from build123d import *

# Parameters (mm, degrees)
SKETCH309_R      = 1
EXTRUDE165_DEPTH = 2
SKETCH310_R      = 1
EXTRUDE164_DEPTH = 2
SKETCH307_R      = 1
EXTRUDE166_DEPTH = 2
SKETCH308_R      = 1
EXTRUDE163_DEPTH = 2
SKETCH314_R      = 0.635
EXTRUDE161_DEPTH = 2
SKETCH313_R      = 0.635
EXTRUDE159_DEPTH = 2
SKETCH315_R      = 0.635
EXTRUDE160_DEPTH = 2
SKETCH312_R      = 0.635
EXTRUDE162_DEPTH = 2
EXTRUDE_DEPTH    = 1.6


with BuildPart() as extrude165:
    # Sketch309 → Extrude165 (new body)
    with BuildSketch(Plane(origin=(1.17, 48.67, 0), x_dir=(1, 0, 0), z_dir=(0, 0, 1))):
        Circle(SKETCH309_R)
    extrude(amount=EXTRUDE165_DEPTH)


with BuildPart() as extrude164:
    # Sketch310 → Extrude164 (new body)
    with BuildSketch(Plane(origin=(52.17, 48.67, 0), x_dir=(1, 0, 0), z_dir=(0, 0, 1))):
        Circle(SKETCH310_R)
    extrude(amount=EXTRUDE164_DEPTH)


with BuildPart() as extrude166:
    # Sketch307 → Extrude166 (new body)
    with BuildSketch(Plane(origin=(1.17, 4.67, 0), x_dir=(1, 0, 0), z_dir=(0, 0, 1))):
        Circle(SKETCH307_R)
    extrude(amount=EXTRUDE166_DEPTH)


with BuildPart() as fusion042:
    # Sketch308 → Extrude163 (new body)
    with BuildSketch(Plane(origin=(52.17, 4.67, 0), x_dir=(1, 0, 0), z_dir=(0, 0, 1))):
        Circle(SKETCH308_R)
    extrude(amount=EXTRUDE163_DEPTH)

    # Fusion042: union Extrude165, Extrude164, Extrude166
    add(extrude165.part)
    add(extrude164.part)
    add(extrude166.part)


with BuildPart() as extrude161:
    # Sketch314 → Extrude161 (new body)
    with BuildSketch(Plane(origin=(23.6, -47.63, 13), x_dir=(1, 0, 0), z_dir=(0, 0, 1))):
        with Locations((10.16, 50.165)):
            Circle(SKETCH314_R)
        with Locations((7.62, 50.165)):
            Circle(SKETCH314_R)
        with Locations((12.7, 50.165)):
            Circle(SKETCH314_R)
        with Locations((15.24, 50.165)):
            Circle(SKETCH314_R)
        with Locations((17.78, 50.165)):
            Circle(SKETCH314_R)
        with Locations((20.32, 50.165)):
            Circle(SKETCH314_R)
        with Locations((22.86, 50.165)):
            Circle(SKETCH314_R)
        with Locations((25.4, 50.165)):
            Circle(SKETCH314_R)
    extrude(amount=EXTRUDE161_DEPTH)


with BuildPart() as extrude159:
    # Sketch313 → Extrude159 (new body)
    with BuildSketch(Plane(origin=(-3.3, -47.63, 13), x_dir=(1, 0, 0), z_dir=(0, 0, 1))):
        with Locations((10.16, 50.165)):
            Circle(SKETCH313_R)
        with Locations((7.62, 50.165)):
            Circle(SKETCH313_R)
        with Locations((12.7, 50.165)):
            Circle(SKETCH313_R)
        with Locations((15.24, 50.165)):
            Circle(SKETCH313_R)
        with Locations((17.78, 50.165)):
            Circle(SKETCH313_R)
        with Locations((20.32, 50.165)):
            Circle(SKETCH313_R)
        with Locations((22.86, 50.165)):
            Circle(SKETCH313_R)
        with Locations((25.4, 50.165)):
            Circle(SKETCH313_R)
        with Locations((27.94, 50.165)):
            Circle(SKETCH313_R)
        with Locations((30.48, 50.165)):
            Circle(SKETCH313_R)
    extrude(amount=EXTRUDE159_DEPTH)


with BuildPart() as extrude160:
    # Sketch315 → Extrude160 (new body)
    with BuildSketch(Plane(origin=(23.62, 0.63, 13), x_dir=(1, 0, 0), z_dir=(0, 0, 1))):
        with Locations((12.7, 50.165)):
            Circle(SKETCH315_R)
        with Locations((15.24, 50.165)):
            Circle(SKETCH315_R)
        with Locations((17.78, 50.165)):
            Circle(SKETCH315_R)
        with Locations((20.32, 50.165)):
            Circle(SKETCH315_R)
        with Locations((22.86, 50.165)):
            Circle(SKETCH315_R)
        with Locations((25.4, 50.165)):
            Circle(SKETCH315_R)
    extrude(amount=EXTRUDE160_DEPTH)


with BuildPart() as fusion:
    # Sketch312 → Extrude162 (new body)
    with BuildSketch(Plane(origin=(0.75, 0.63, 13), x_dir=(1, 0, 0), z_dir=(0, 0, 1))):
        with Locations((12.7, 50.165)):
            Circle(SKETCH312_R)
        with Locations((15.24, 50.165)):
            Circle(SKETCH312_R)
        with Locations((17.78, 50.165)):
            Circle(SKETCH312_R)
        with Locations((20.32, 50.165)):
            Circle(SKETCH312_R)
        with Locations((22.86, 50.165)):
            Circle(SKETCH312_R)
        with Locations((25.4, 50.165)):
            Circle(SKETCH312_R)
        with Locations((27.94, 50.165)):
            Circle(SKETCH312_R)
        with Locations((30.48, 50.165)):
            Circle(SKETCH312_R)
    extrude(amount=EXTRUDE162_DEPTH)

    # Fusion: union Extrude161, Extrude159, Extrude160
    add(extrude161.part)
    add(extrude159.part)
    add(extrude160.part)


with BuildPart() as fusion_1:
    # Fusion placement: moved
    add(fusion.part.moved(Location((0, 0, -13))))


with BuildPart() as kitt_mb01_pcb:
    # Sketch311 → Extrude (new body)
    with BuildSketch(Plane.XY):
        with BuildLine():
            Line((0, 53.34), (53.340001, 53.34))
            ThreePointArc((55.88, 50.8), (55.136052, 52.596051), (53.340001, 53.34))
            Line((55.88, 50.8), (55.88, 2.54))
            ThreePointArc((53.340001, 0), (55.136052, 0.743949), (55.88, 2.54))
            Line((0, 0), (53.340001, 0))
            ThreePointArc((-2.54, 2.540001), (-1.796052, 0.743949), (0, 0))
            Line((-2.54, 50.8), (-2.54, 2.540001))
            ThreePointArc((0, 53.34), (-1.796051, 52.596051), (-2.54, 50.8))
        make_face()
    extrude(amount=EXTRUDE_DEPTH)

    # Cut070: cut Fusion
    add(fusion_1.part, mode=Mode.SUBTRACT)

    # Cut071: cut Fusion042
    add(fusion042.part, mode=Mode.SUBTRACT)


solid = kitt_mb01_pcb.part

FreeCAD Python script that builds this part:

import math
import FreeCAD as App
import Part
import Sketcher
Q = App.Units.Quantity

doc = App.newDocument("Part")
body = doc.addObject("PartDesign::Body", "Body")

# Sketch on XY plane
sketch1 = body.newObject("Sketcher::SketchObject", "Sketch")
sketch1.AttachmentSupport = (doc.getObject("XY_Plane"), [""])
sketch1.MapMode = "FlatFace"
sketch1.addGeometry(Part.Circle(App.Vector(1.2, 48.7, 0), App.Vector(0, 0, 1), 1), False)
sketch1.addConstraint(Sketcher.Constraint("Diameter", 0, 2.0))
sketch1.addConstraint(Sketcher.Constraint("DistanceX", -1, 1, 0, 3, 1.17))
sketch1.addConstraint(Sketcher.Constraint("DistanceY", -1, 1, 0, 3, 48.67))
pad1 = body.newObject("PartDesign::Pad", "Pad")
pad1.Profile = sketch1
pad1.Length = 2
body2 = doc.addObject("PartDesign::Body", "Body001")

# Sketch on XY plane
sketch2 = body2.newObject("Sketcher::SketchObject", "Sketch001")
sketch2.AttachmentSupport = (doc.getObject("XY_Plane001"), [""])
sketch2.MapMode = "FlatFace"
sketch2.addGeometry(Part.Circle(App.Vector(52.2, 48.7, 0), App.Vector(0, 0, 1), 1), False)
sketch2.addConstraint(Sketcher.Constraint("Diameter", 0, 2.0))
sketch2.addConstraint(Sketcher.Constraint("DistanceX", -1, 1, 0, 3, 52.17))
sketch2.addConstraint(Sketcher.Constraint("DistanceY", -1, 1, 0, 3, 48.67))
pad2 = body2.newObject("PartDesign::Pad", "Pad001")
pad2.Profile = sketch2
pad2.Length = 2
body3 = doc.addObject("PartDesign::Body", "Body002")

# Sketch on XY plane
sketch3 = body3.newObject("Sketcher::SketchObject", "Sketch002")
sketch3.AttachmentSupport = (doc.getObject("XY_Plane002"), [""])
sketch3.MapMode = "FlatFace"
sketch3.addGeometry(Part.Circle(App.Vector(1.2, 4.7, 0), App.Vector(0, 0, 1), 1), False)
sketch3.addConstraint(Sketcher.Constraint("Diameter", 0, 2.0))
sketch3.addConstraint(Sketcher.Constraint("DistanceX", -1, 1, 0, 3, 1.17))
sketch3.addConstraint(Sketcher.Constraint("DistanceY", -1, 1, 0, 3, 4.67))
pad3 = body3.newObject("PartDesign::Pad", "Pad002")
pad3.Profile = sketch3
pad3.Length = 2
body4 = doc.addObject("PartDesign::Body", "Body003")
body4.AllowCompound = True

# Sketch on XY plane
sketch4 = body4.newObject("Sketcher::SketchObject", "Sketch003")
sketch4.AttachmentSupport = (doc.getObject("XY_Plane003"), [""])
sketch4.MapMode = "FlatFace"
sketch4.addGeometry(Part.Circle(App.Vector(52.2, 4.7, 0), App.Vector(0, 0, 1), 1), False)
sketch4.addConstraint(Sketcher.Constraint("Diameter", 0, 2.0))
sketch4.addConstraint(Sketcher.Constraint("DistanceX", -1, 1, 0, 3, 52.17))
sketch4.addConstraint(Sketcher.Constraint("DistanceY", -1, 1, 0, 3, 4.67))
pad4 = body4.newObject("PartDesign::Pad", "Pad003")
pad4.Profile = sketch4
pad4.Length = 2
doc.recompute()

boolean = body4.newObject("PartDesign::Boolean", "Boolean")
boolean.Type = "Fuse"
boolean.addObjects([body])
doc.recompute()

boolean2 = body4.newObject("PartDesign::Boolean", "Boolean001")
boolean2.Type = "Fuse"
boolean2.addObjects([body2])
doc.recompute()

boolean3 = body4.newObject("PartDesign::Boolean", "Boolean002")
boolean3.Type = "Fuse"
boolean3.addObjects([body3])
body5 = doc.addObject("PartDesign::Body", "Body004")
body5.AllowCompound = True

# Sketch on XY plane
sketch5 = body5.newObject("Sketcher::SketchObject", "Sketch004")
sketch5.AttachmentSupport = (doc.getObject("XY_Plane004"), [""])
sketch5.MapMode = "FlatFace"
sketch5.AttachmentOffset = App.Placement(App.Vector(0, 0, 13), App.Rotation())
sketch5.addGeometry(Part.Circle(App.Vector(33.8, 2.5, 0), App.Vector(0, 0, 1), 0.6), False)
sketch5.addGeometry(Part.Circle(App.Vector(31.2, 2.5, 0), App.Vector(0, 0, 1), 0.6), False)
sketch5.addGeometry(Part.Circle(App.Vector(36.3, 2.5, 0), App.Vector(0, 0, 1), 0.6), False)
sketch5.addGeometry(Part.Circle(App.Vector(38.8, 2.5, 0), App.Vector(0, 0, 1), 0.6), False)
sketch5.addGeometry(Part.Circle(App.Vector(41.4, 2.5, 0), App.Vector(0, 0, 1), 0.6), False)
sketch5.addGeometry(Part.Circle(App.Vector(43.9, 2.5, 0), App.Vector(0, 0, 1), 0.6), False)
sketch5.addGeometry(Part.Circle(App.Vector(46.5, 2.5, 0), App.Vector(0, 0, 1), 0.6), False)
sketch5.addGeometry(Part.Circle(App.Vector(49, 2.5, 0), App.Vector(0, 0, 1), 0.6), False)
sketch5.addConstraint(Sketcher.Constraint("Equal", 0, 1))
sketch5.addConstraint(Sketcher.Constraint("Equal", 1, 2))
sketch5.addConstraint(Sketcher.Constraint("Equal", 2, 3))
sketch5.addConstraint(Sketcher.Constraint("Equal", 3, 4))
sketch5.addConstraint(Sketcher.Constraint("Equal", 4, 5))
sketch5.addConstraint(Sketcher.Constraint("Equal", 5, 6))
sketch5.addConstraint(Sketcher.Constraint("Equal", 6, 7))
sketch5.addConstraint(Sketcher.Constraint("Horizontal", 0, 3, 1, 3))
sketch5.addConstraint(Sketcher.Constraint("Horizontal", 1, 3, 2, 3))
sketch5.addConstraint(Sketcher.Constraint("Horizontal", 2, 3, 3, 3))
sketch5.addConstraint(Sketcher.Constraint("Horizontal", 3, 3, 4, 3))
sketch5.addConstraint(Sketcher.Constraint("Horizontal", 4, 3, 5, 3))
sketch5.addConstraint(Sketcher.Constraint("Horizontal", 5, 3, 6, 3))
sketch5.addConstraint(Sketcher.Constraint("Horizontal", 6, 3, 7, 3))
sketch5.addConstraint(Sketcher.Constraint("Diameter", 0, Q("0.05 in")))
sketch5.addConstraint(Sketcher.Constraint("DistanceX", 1, 3, 0, 3, Q("0.1 in")))
sketch5.addConstraint(Sketcher.Constraint("DistanceX", 0, 3, 2, 3, Q("0.1 in")))
sketch5.addConstraint(Sketcher.Constraint("DistanceX", 2, 3, 3, 3, Q("0.1 in")))
sketch5.addConstraint(Sketcher.Constraint("DistanceX", 3, 3, 4, 3, Q("0.1 in")))
sketch5.addConstraint(Sketcher.Constraint("DistanceX", 4, 3, 5, 3, Q("0.1 in")))
sketch5.addConstraint(Sketcher.Constraint("DistanceX", 5, 3, 6, 3, Q("0.1 in")))
sketch5.addConstraint(Sketcher.Constraint("DistanceX", 6, 3, 7, 3, Q("0.1 in")))
sketch5.addConstraint(Sketcher.Constraint("DistanceX", -1, 1, 0, 3, 33.76))
sketch5.addConstraint(Sketcher.Constraint("DistanceY", -1, 1, 0, 3, 2.535))
pad5 = body5.newObject("PartDesign::Pad", "Pad004")
pad5.Profile = sketch5
pad5.Length = 2
body6 = doc.addObject("PartDesign::Body", "Body005")
body6.AllowCompound = True

# Sketch on XY plane
sketch6 = body6.newObject("Sketcher::SketchObject", "Sketch005")
sketch6.AttachmentSupport = (doc.getObject("XY_Plane005"), [""])
sketch6.MapMode = "FlatFace"
sketch6.AttachmentOffset = App.Placement(App.Vector(0, 0, 13), App.Rotation())
sketch6.addGeometry(Part.Circle(App.Vector(6.9, 2.5, 0), App.Vector(0, 0, 1), 0.6), False)
sketch6.addGeometry(Part.Circle(App.Vector(4.3, 2.5, 0), App.Vector(0, 0, 1), 0.6), False)
sketch6.addGeometry(Part.Circle(App.Vector(9.4, 2.5, 0), App.Vector(0, 0, 1), 0.6), False)
sketch6.addGeometry(Part.Circle(App.Vector(11.9, 2.5, 0), App.Vector(0, 0, 1), 0.6), False)
sketch6.addGeometry(Part.Circle(App.Vector(14.5, 2.5, 0), App.Vector(0, 0, 1), 0.6), False)
sketch6.addGeometry(Part.Circle(App.Vector(17, 2.5, 0), App.Vector(0, 0, 1), 0.6), False)
sketch6.addGeometry(Part.Circle(App.Vector(19.6, 2.5, 0), App.Vector(0, 0, 1), 0.6), False)
sketch6.addGeometry(Part.Circle(App.Vector(22.1, 2.5, 0), App.Vector(0, 0, 1), 0.6), False)
sketch6.addGeometry(Part.Circle(App.Vector(24.6, 2.5, 0), App.Vector(0, 0, 1), 0.6), False)
sketch6.addGeometry(Part.Circle(App.Vector(27.2, 2.5, 0), App.Vector(0, 0, 1), 0.6), False)
sketch6.addConstraint(Sketcher.Constraint("Equal", 0, 1))
sketch6.addConstraint(Sketcher.Constraint("Equal", 1, 2))
sketch6.addConstraint(Sketcher.Constraint("Equal", 2, 3))
sketch6.addConstraint(Sketcher.Constraint("Equal", 3, 4))
sketch6.addConstraint(Sketcher.Constraint("Equal", 4, 5))
sketch6.addConstraint(Sketcher.Constraint("Equal", 5, 6))
sketch6.addConstraint(Sketcher.Constraint("Equal", 6, 7))
sketch6.addConstraint(Sketcher.Constraint("Equal", 7, 8))
sketch6.addConstraint(Sketcher.Constraint("Equal", 8, 9))
sketch6.addConstraint(Sketcher.Constraint("Horizontal", 0, 3, 1, 3))
sketch6.addConstraint(Sketcher.Constraint("Horizontal", 1, 3, 2, 3))
sketch6.addConstraint(Sketcher.Constraint("Horizontal", 2, 3, 3, 3))
sketch6.addConstraint(Sketcher.Constraint("Horizontal", 3, 3, 4, 3))
sketch6.addConstraint(Sketcher.Constraint("Horizontal", 4, 3, 5, 3))
sketch6.addConstraint(Sketcher.Constraint("Horizontal", 5, 3, 6, 3))
sketch6.addConstraint(Sketcher.Constraint("Horizontal", 6, 3, 7, 3))
sketch6.addConstraint(Sketcher.Constraint("Horizontal", 7, 3, 8, 3))
sketch6.addConstraint(Sketcher.Constraint("Horizontal", 8, 3, 9, 3))
sketch6.addConstraint(Sketcher.Constraint("Diameter", 0, Q("0.05 in")))
sketch6.addConstraint(Sketcher.Constraint("DistanceX", 1, 3, 0, 3, Q("0.1 in")))
sketch6.addConstraint(Sketcher.Constraint("DistanceX", 0, 3, 2, 3, Q("0.1 in")))
sketch6.addConstraint(Sketcher.Constraint("DistanceX", 2, 3, 3, 3, Q("0.1 in")))
sketch6.addConstraint(Sketcher.Constraint("DistanceX", 3, 3, 4, 3, Q("0.1 in")))
sketch6.addConstraint(Sketcher.Constraint("DistanceX", 4, 3, 5, 3, Q("0.1 in")))
sketch6.addConstraint(Sketcher.Constraint("DistanceX", 5, 3, 6, 3, Q("0.1 in")))
sketch6.addConstraint(Sketcher.Constraint("DistanceX", 6, 3, 7, 3, Q("0.1 in")))
sketch6.addConstraint(Sketcher.Constraint("DistanceX", 7, 3, 8, 3, Q("0.1 in")))
sketch6.addConstraint(Sketcher.Constraint("DistanceX", 8, 3, 9, 3, Q("0.1 in")))
sketch6.addConstraint(Sketcher.Constraint("DistanceX", -1, 1, 0, 3, 6.86))
sketch6.addConstraint(Sketcher.Constraint("DistanceY", -1, 1, 0, 3, 2.535))
pad6 = body6.newObject("PartDesign::Pad", "Pad005")
pad6.Profile = sketch6
pad6.Length = 2
body7 = doc.addObject("PartDesign::Body", "Body006")
body7.AllowCompound = True

# Sketch on XY plane
sketch7 = body7.newObject("Sketcher::SketchObject", "Sketch006")
sketch7.AttachmentSupport = (doc.getObject("XY_Plane006"), [""])
sketch7.MapMode = "FlatFace"
sketch7.AttachmentOffset = App.Placement(App.Vector(0, 0, 13), App.Rotation())
sketch7.addGeometry(Part.Circle(App.Vector(36.3, 50.8, 0), App.Vector(0, 0, 1), 0.6), False)
sketch7.addGeometry(Part.Circle(App.Vector(38.9, 50.8, 0), App.Vector(0, 0, 1), 0.6), False)
sketch7.addGeometry(Part.Circle(App.Vector(41.4, 50.8, 0), App.Vector(0, 0, 1), 0.6), False)
sketch7.addGeometry(Part.Circle(App.Vector(43.9, 50.8, 0), App.Vector(0, 0, 1), 0.6), False)
sketch7.addGeometry(Part.Circle(App.Vector(46.5, 50.8, 0), App.Vector(0, 0, 1), 0.6), False)
sketch7.addGeometry(Part.Circle(App.Vector(49, 50.8, 0), App.Vector(0, 0, 1), 0.6), False)
sketch7.addConstraint(Sketcher.Constraint("Equal", 0, 1))
sketch7.addConstraint(Sketcher.Constraint("Equal", 1, 2))
sketch7.addConstraint(Sketcher.Constraint("Equal", 2, 3))
sketch7.addConstraint(Sketcher.Constraint("Equal", 3, 4))
sketch7.addConstraint(Sketcher.Constraint("Equal", 4, 5))
sketch7.addConstraint(Sketcher.Constraint("Horizontal", 0, 3, 1, 3))
sketch7.addConstraint(Sketcher.Constraint("Horizontal", 1, 3, 2, 3))
sketch7.addConstraint(Sketcher.Constraint("Horizontal", 2, 3, 3, 3))
sketch7.addConstraint(Sketcher.Constraint("Horizontal", 3, 3, 4, 3))
sketch7.addConstraint(Sketcher.Constraint("Horizontal", 4, 3, 5, 3))
sketch7.addConstraint(Sketcher.Constraint("Diameter", 0, Q("0.05 in")))
sketch7.addConstraint(Sketcher.Constraint("DistanceX", 0, 3, 1, 3, Q("0.1 in")))
sketch7.addConstraint(Sketcher.Constraint("DistanceX", 1, 3, 2, 3, Q("0.1 in")))
sketch7.addConstraint(Sketcher.Constraint("DistanceX", 2, 3, 3, 3, Q("0.1 in")))
sketch7.addConstraint(Sketcher.Constraint("DistanceX", 3, 3, 4, 3, Q("0.1 in")))
sketch7.addConstraint(Sketcher.Constraint("DistanceX", 4, 3, 5, 3, Q("0.1 in")))
sketch7.addConstraint(Sketcher.Constraint("DistanceX", -1, 1, 0, 3, 36.32))
sketch7.addConstraint(Sketcher.Constraint("DistanceY", -1, 1, 0, 3, 50.795))
pad7 = body7.newObject("PartDesign::Pad", "Pad006")
pad7.Profile = sketch7
pad7.Length = 2
body8 = doc.addObject("PartDesign::Body", "Body007")
body8.AllowCompound = True

# Sketch on XY plane
sketch8 = body8.newObject("Sketcher::SketchObject", "Sketch007")
sketch8.AttachmentSupport = (doc.getObject("XY_Plane007"), [""])
sketch8.MapMode = "FlatFace"
sketch8.AttachmentOffset = App.Placement(App.Vector(0, 0, 13), App.Rotation())
sketch8.addGeometry(Part.Circle(App.Vector(13.4, 50.8, 0), App.Vector(0, 0, 1), 0.6), False)
sketch8.addGeometry(Part.Circle(App.Vector(16, 50.8, 0), App.Vector(0, 0, 1), 0.6), False)
sketch8.addGeometry(Part.Circle(App.Vector(18.5, 50.8, 0), App.Vector(0, 0, 1), 0.6), False)
sketch8.addGeometry(Part.Circle(App.Vector(21.1, 50.8, 0), App.Vector(0, 0, 1), 0.6), False)
sketch8.addGeometry(Part.Circle(App.Vector(23.6, 50.8, 0), App.Vector(0, 0, 1), 0.6), False)
sketch8.addGeometry(Part.Circle(App.Vector(26.1, 50.8, 0), App.Vector(0, 0, 1), 0.6), False)
sketch8.addGeometry(Part.Circle(App.Vector(28.7, 50.8, 0), App.Vector(0, 0, 1), 0.6), False)
sketch8.addGeometry(Part.Circle(App.Vector(31.2, 50.8, 0), App.Vector(0, 0, 1), 0.6), False)
sketch8.addConstraint(Sketcher.Constraint("Equal", 0, 1))
sketch8.addConstraint(Sketcher.Constraint("Equal", 1, 2))
sketch8.addConstraint(Sketcher.Constraint("Equal", 2, 3))
sketch8.addConstraint(Sketcher.Constraint("Equal", 3, 4))
sketch8.addConstraint(Sketcher.Constraint("Equal", 4, 5))
sketch8.addConstraint(Sketcher.Constraint("Equal", 5, 6))
sketch8.addConstraint(Sketcher.Constraint("Equal", 6, 7))
sketch8.addConstraint(Sketcher.Constraint("Horizontal", 0, 3, 1, 3))
sketch8.addConstraint(Sketcher.Constraint("Horizontal", 1, 3, 2, 3))
sketch8.addConstraint(Sketcher.Constraint("Horizontal", 2, 3, 3, 3))
sketch8.addConstraint(Sketcher.Constraint("Horizontal", 3, 3, 4, 3))
sketch8.addConstraint(Sketcher.Constraint("Horizontal", 4, 3, 5, 3))
sketch8.addConstraint(Sketcher.Constraint("Horizontal", 5, 3, 6, 3))
sketch8.addConstraint(Sketcher.Constraint("Horizontal", 6, 3, 7, 3))
sketch8.addConstraint(Sketcher.Constraint("Diameter", 0, Q("0.05 in")))
sketch8.addConstraint(Sketcher.Constraint("DistanceX", 0, 3, 1, 3, Q("0.1 in")))
sketch8.addConstraint(Sketcher.Constraint("DistanceX", 1, 3, 2, 3, Q("0.1 in")))
sketch8.addConstraint(Sketcher.Constraint("DistanceX", 2, 3, 3, 3, Q("0.1 in")))
sketch8.addConstraint(Sketcher.Constraint("DistanceX", 3, 3, 4, 3, Q("0.1 in")))
sketch8.addConstraint(Sketcher.Constraint("DistanceX", 4, 3, 5, 3, Q("0.1 in")))
sketch8.addConstraint(Sketcher.Constraint("DistanceX", 5, 3, 6, 3, Q("0.1 in")))
sketch8.addConstraint(Sketcher.Constraint("DistanceX", 6, 3, 7, 3, Q("0.1 in")))
sketch8.addConstraint(Sketcher.Constraint("DistanceX", -1, 1, 0, 3, 13.45))
sketch8.addConstraint(Sketcher.Constraint("DistanceY", -1, 1, 0, 3, 50.795))
pad8 = body8.newObject("PartDesign::Pad", "Pad007")
pad8.Profile = sketch8
pad8.Length = 2
doc.recompute()

boolean4 = body8.newObject("PartDesign::Boolean", "Boolean003")
boolean4.Type = "Fuse"
boolean4.addObjects([body5])
doc.recompute()

boolean5 = body8.newObject("PartDesign::Boolean", "Boolean004")
boolean5.Type = "Fuse"
boolean5.addObjects([body6])
doc.recompute()

boolean6 = body8.newObject("PartDesign::Boolean", "Boolean005")
boolean6.Type = "Fuse"
boolean6.addObjects([body7])
body9 = doc.addObject("PartDesign::Body", "Body008")
body9.AllowCompound = True
doc.recompute()

body8.Placement = App.Placement(App.Vector(0, 0, -13), App.Rotation(App.Vector(0, 0, 1), 0))
boolean7 = body9.newObject("PartDesign::Boolean", "Boolean006")
boolean7.Type = "Fuse"
boolean7.addObjects([body8])
body10 = doc.addObject("PartDesign::Body", "Body009")

# Sketch on XY plane
sketch9 = body10.newObject("Sketcher::SketchObject", "Sketch008")
sketch9.AttachmentSupport = (doc.getObject("XY_Plane009"), [""])
sketch9.MapMode = "FlatFace"
sketch9.addGeometry(Part.LineSegment(App.Vector(53.3, 53.3, 0), App.Vector(0, 53.3, 0)), False)
sketch9.addGeometry(Part.ArcOfCircle(Part.Circle(App.Vector(0, 50.8, 0), App.Vector(0, 0, 1), 2.5), math.radians(90), math.radians(180)), False)
sketch9.addGeometry(Part.LineSegment(App.Vector(-2.5, 50.8, 0), App.Vector(-2.5, 2.5, 0)), False)
sketch9.addGeometry(Part.ArcOfCircle(Part.Circle(App.Vector(0, 2.5, 0), App.Vector(0, 0, 1), 2.5), math.radians(180), math.radians(270)), False)
sketch9.addGeometry(Part.LineSegment(App.Vector(0, 0, 0), App.Vector(53.3, 0, 0)), False)
sketch9.addGeometry(Part.ArcOfCircle(Part.Circle(App.Vector(53.3, 2.5, 0), App.Vector(0, 0, 1), 2.5), math.radians(-90), math.radians(0)), False)
sketch9.addGeometry(Part.LineSegment(App.Vector(55.9, 2.5, 0), App.Vector(55.9, 50.8, 0)), False)
sketch9.addGeometry(Part.ArcOfCircle(Part.Circle(App.Vector(53.3, 50.8, 0), App.Vector(0, 0, 1), 2.5), math.radians(0), math.radians(90)), False)
sketch9.addConstraint(Sketcher.Constraint("Tangent", 0, 2, 1, 1))
sketch9.addConstraint(Sketcher.Constraint("Tangent", 1, 2, 2, 1))
sketch9.addConstraint(Sketcher.Constraint("Tangent", 2, 2, 3, 1))
sketch9.addConstraint(Sketcher.Constraint("Tangent", 3, 2, 4, 1))
sketch9.addConstraint(Sketcher.Constraint("Tangent", 4, 2, 5, 1))
sketch9.addConstraint(Sketcher.Constraint("Tangent", 5, 2, 6, 1))
sketch9.addConstraint(Sketcher.Constraint("Tangent", 6, 2, 7, 1))
sketch9.addConstraint(Sketcher.Constraint("Tangent", 7, 2, 0, 1))
sketch9.addConstraint(Sketcher.Constraint("Horizontal", 0))
sketch9.addConstraint(Sketcher.Constraint("Vertical", 2))
sketch9.addConstraint(Sketcher.Constraint("Horizontal", 4))
sketch9.addConstraint(Sketcher.Constraint("Vertical", 6))
sketch9.addConstraint(Sketcher.Constraint("Coincident", 3, 2, -1, 1))
sketch9.addConstraint(Sketcher.Constraint("Equal", 1, 3))
sketch9.addConstraint(Sketcher.Constraint("Equal", 3, 5))
sketch9.addConstraint(Sketcher.Constraint("Equal", 5, 7))
sketch9.addConstraint(Sketcher.Constraint("Radius", 1, Q("0.1 in")))
sketch9.addConstraint(Sketcher.Constraint("DistanceX", 0, 2, 0, 1, Q("2.1 in")))
sketch9.addConstraint(Sketcher.Constraint("DistanceY", 2, 2, 2, 1, Q("1.9 in")))
pad9 = body10.newObject("PartDesign::Pad", "Pad008")
pad9.Profile = sketch9
pad9.Length = 1.6
doc.recompute()

boolean8 = body10.newObject("PartDesign::Boolean", "Boolean007")
boolean8.Type = "Cut"
boolean8.addObjects([body9])
doc.recompute()

boolean9 = body10.newObject("PartDesign::Boolean", "Boolean008")
boolean9.Type = "Cut"
boolean9.addObjects([body4])

doc.recompute()
